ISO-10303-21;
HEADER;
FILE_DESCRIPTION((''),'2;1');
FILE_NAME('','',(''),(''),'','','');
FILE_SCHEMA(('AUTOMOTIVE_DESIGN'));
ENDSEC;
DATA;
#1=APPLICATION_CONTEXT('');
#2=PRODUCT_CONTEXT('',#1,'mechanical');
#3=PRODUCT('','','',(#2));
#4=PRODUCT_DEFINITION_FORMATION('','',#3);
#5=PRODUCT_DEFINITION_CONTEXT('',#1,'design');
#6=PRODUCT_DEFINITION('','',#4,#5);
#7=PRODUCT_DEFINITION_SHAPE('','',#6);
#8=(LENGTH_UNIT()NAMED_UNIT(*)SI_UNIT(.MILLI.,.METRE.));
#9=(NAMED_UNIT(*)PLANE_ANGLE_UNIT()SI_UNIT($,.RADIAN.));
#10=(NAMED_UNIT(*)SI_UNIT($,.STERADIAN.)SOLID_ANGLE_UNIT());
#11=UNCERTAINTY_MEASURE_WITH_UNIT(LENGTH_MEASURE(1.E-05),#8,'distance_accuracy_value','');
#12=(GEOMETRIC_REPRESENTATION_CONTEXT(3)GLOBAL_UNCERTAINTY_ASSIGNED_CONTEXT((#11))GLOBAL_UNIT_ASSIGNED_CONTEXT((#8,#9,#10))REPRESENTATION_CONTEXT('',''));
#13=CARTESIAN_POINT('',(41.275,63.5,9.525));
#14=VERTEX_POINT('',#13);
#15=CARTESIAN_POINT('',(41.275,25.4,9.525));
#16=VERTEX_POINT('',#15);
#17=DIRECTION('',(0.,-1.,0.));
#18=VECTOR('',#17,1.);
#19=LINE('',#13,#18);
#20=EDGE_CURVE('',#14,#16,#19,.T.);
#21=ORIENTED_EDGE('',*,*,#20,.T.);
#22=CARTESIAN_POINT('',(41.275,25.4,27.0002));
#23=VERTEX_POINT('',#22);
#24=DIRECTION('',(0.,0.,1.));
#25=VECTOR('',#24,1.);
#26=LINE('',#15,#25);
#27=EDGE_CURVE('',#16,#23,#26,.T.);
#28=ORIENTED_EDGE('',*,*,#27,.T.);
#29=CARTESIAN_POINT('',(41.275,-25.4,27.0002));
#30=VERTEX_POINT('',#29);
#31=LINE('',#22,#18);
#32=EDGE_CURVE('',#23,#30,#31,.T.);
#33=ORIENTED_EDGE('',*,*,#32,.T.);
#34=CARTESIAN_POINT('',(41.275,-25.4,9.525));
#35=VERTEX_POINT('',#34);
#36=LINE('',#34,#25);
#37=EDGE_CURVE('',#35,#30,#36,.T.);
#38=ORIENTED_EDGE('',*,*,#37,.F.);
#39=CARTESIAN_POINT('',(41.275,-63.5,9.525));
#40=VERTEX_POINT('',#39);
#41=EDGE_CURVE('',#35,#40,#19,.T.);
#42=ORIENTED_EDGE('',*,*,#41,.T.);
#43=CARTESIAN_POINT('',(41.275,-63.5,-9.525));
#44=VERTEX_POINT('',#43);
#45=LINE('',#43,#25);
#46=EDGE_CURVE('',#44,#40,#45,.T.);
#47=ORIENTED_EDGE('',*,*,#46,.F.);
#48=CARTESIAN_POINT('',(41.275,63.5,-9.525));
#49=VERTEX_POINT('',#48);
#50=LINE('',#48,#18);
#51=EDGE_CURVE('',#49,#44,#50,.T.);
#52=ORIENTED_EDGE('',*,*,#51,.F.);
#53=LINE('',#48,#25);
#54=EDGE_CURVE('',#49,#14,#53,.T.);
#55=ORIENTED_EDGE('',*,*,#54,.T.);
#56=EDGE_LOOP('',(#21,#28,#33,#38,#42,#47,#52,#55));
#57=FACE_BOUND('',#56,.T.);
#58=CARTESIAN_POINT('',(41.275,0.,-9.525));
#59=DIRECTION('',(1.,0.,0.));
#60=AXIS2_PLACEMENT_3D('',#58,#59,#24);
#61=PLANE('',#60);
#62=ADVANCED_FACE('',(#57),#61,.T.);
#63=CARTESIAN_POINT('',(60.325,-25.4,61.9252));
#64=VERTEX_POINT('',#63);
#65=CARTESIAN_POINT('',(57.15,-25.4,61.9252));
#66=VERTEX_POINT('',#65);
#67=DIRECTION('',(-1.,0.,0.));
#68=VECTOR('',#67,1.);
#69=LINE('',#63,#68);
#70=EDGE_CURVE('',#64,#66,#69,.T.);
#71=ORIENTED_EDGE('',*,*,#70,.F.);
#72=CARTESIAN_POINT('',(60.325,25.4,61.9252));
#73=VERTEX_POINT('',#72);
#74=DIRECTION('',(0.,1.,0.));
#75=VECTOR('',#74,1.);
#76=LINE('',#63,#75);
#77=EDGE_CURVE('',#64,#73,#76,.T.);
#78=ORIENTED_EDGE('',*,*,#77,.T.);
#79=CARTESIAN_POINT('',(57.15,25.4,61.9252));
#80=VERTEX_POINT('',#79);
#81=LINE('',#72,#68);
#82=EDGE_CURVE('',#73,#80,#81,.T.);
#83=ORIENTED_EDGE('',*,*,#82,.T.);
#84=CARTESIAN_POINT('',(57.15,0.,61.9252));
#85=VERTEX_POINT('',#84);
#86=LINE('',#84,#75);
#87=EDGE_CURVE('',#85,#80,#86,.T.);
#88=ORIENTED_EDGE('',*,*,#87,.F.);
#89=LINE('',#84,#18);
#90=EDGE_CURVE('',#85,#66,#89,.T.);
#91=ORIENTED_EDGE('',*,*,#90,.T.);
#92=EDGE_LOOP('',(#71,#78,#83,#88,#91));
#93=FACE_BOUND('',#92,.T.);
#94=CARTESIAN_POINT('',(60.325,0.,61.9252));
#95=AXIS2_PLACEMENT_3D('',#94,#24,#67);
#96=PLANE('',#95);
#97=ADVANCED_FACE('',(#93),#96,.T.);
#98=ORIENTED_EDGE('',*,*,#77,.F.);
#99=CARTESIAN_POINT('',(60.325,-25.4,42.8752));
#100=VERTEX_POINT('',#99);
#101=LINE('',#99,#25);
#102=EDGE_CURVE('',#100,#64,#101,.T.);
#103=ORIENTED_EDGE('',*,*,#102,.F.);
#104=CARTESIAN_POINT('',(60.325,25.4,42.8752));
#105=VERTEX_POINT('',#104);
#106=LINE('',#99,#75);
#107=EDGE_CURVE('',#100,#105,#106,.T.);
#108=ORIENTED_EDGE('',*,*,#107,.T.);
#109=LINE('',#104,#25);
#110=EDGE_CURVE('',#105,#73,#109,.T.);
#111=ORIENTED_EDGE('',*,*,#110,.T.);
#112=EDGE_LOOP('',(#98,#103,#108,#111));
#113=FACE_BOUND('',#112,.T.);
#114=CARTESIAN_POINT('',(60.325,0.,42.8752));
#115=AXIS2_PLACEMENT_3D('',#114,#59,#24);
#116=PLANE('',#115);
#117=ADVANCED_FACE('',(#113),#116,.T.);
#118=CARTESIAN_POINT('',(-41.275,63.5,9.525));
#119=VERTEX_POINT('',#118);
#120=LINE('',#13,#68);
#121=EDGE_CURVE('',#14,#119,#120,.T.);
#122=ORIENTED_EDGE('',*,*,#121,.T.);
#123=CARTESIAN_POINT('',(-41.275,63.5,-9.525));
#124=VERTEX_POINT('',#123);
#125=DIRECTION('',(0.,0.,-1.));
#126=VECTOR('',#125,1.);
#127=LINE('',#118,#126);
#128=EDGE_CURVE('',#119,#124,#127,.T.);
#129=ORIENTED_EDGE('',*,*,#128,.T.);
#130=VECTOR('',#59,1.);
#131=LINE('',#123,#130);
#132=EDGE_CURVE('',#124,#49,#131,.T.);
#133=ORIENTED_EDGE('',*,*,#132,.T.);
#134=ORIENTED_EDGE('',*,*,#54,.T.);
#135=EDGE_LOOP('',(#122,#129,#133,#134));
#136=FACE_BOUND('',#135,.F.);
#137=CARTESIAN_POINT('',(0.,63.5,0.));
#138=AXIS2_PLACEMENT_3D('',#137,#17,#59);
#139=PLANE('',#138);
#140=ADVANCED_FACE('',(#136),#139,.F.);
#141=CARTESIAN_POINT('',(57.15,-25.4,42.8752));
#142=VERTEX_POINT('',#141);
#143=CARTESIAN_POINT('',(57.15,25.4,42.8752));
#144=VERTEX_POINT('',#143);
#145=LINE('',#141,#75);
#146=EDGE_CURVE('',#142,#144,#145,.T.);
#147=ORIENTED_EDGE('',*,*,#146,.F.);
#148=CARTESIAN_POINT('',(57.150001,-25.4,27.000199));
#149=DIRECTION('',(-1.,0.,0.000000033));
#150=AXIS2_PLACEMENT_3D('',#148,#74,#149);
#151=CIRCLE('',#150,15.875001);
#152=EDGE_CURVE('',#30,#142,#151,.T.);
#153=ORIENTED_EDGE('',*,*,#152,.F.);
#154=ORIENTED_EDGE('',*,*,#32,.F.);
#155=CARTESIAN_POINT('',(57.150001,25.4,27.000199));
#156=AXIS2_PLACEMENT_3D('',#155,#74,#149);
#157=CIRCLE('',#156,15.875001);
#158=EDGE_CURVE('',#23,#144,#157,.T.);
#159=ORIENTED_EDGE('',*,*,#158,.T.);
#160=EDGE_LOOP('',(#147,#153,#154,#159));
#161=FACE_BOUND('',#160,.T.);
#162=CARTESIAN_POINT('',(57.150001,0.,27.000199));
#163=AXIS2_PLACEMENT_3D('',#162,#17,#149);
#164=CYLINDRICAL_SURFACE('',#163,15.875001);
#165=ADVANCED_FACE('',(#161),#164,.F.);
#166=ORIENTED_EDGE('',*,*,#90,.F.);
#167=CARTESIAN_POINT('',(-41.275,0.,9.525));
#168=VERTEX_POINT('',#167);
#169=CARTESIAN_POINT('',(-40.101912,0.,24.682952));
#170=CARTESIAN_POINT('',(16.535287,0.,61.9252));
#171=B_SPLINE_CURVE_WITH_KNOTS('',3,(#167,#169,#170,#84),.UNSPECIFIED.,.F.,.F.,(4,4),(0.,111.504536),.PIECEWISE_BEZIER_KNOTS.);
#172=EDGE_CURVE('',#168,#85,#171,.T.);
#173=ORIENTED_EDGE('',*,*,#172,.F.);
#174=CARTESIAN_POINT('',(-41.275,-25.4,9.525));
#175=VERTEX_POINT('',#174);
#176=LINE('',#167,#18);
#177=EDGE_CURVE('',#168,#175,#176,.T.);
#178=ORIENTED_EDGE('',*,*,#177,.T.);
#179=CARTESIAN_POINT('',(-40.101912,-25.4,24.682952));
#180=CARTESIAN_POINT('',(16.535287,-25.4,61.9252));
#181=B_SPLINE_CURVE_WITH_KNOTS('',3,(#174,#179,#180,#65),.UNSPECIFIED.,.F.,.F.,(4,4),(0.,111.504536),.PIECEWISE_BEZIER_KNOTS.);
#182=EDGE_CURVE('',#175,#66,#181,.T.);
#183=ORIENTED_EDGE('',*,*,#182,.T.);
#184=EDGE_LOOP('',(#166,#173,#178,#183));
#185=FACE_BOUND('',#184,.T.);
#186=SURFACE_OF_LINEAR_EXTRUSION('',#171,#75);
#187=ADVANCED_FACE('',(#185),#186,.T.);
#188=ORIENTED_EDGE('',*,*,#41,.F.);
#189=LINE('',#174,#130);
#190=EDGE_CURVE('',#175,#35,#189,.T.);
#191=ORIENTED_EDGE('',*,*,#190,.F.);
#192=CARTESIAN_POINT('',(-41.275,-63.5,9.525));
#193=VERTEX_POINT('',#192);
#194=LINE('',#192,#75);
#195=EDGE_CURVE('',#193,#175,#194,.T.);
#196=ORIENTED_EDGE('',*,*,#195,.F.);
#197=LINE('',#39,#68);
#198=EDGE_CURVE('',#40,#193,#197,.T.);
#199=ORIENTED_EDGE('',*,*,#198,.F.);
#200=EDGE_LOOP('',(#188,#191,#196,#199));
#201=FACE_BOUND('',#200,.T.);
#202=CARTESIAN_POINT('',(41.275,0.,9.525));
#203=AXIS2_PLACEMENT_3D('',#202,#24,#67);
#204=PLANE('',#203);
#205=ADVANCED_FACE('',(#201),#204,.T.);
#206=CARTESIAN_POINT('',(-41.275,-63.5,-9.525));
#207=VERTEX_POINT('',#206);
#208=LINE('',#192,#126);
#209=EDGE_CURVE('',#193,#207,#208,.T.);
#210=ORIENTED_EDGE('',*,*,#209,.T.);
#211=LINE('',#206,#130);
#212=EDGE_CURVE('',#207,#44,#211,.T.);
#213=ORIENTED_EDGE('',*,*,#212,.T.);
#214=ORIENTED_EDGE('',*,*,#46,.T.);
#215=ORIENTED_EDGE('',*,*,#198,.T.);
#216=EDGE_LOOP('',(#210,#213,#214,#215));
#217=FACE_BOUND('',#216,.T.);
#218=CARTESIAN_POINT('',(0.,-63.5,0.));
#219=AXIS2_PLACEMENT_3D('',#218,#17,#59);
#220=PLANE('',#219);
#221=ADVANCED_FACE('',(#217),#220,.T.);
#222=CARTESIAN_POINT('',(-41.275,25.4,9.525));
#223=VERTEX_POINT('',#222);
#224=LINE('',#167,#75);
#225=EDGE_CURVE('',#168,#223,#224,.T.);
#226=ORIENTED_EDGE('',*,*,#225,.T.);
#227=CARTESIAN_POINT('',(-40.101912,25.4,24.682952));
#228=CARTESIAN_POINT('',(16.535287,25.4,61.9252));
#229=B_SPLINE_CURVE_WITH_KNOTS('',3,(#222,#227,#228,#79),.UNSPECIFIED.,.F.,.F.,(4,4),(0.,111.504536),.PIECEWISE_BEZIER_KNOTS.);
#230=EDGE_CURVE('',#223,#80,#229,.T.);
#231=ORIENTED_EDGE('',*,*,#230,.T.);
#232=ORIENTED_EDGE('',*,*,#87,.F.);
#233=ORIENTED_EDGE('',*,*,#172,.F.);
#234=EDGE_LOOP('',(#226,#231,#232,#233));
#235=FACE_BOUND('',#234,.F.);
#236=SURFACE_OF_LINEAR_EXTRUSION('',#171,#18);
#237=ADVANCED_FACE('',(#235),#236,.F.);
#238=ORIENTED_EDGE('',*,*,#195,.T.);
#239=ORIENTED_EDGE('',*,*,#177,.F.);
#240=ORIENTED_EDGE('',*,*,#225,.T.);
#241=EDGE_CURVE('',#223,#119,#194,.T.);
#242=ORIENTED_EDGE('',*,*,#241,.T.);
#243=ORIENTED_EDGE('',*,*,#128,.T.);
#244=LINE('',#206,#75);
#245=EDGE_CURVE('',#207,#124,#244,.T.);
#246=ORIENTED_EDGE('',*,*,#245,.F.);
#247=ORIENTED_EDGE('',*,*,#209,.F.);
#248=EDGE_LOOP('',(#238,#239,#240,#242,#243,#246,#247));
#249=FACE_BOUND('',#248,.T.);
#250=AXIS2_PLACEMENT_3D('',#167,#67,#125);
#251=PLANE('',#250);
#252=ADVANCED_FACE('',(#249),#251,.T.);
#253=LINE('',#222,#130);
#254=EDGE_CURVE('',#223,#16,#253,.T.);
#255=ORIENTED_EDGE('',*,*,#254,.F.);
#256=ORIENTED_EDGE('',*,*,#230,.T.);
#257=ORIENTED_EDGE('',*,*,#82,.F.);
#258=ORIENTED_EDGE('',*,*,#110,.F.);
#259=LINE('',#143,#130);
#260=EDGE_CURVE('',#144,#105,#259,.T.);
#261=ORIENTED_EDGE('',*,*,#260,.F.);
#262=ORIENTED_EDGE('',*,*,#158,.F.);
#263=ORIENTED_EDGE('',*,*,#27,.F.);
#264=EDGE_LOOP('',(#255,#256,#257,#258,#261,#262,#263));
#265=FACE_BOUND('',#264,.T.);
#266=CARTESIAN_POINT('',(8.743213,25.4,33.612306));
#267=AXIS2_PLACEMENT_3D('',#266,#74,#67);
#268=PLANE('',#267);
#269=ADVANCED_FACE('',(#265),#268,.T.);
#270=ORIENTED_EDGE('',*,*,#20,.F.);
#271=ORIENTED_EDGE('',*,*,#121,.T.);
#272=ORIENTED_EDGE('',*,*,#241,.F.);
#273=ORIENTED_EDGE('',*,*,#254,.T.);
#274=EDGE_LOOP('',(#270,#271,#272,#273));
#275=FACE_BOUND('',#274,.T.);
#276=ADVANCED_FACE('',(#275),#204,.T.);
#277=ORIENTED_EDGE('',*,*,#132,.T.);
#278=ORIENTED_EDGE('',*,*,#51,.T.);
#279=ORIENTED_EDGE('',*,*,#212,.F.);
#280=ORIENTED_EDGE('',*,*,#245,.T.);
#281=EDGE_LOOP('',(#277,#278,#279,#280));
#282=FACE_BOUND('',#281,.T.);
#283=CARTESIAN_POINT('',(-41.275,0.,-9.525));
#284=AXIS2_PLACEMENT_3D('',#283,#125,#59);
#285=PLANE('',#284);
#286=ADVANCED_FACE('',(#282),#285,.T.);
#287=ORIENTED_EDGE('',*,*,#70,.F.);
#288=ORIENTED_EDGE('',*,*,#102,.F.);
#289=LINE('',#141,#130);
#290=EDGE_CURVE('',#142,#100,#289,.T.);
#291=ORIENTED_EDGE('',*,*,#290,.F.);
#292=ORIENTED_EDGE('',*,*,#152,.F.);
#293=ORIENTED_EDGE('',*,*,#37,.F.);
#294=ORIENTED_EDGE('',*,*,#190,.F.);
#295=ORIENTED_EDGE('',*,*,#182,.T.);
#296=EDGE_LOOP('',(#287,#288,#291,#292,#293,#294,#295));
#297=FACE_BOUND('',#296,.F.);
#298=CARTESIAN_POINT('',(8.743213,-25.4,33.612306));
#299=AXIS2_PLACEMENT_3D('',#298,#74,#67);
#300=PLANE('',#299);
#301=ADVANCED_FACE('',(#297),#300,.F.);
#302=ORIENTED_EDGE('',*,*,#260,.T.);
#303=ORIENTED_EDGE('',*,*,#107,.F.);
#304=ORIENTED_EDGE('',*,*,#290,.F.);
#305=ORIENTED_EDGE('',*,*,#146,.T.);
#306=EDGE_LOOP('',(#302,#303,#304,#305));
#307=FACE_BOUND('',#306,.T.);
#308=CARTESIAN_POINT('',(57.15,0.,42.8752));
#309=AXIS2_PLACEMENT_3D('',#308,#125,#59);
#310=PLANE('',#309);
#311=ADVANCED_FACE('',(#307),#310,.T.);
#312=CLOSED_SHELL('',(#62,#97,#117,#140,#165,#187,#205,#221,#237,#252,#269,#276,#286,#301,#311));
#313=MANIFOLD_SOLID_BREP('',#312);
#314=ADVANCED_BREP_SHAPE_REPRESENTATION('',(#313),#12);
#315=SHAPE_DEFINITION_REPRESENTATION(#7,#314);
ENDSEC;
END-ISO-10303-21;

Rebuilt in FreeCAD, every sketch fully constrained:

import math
import FreeCAD as App
import Part
import Sketcher
Q = App.Units.Quantity


def add_polygon(sketch, points):
    """Adds a closed chain of lines whose ends are joined by coincident constraints."""
    first, n = sketch.GeometryCount, len(points)
    for a, b in zip(points, points[1:] + points[:1]):
        sketch.addGeometry(Part.LineSegment(App.Vector(*a, 0), App.Vector(*b, 0)), False)
    for i in range(n):
        sketch.addConstraint(Sketcher.Constraint("Coincident", first + i, 2, first + (i + 1) % n, 1))

doc = App.newDocument("Part")
body = doc.addObject("PartDesign::Body", "Body")

# Sketch on XZ plane
sketch1 = body.newObject("Sketcher::SketchObject", "Sketch")
sketch1.AttachmentSupport = (doc.getObject("XZ_Plane"), [""])
sketch1.MapMode = "FlatFace"
add_polygon(sketch1, [(-41.275, -9.525), (41.275, -9.525), (41.275, 9.525), (-41.275, 9.525)])  # lines 0-3
sketch1.addConstraint(Sketcher.Constraint("Horizontal", 0))
sketch1.addConstraint(Sketcher.Constraint("Vertical", 1))
sketch1.addConstraint(Sketcher.Constraint("Horizontal", 2))
sketch1.addConstraint(Sketcher.Constraint("Vertical", 3))
sketch1.addConstraint(Sketcher.Constraint("Symmetric", 0, 2, 2, 2, -1, 1))
sketch1.addConstraint(Sketcher.Constraint("DistanceX", 0, 1, 0, 2, Q("3.25 in")))
sketch1.addConstraint(Sketcher.Constraint("DistanceY", 1, 1, 1, 2, Q("0.75 in")))
pad1 = body.newObject("PartDesign::Pad", "Pad")
pad1.Profile = sketch1
pad1.Length = Q("5 in")
pad1.Midplane = True

# Sketch on XZ plane
sketch2 = body.newObject("Sketcher::SketchObject", "Sketch001")
sketch2.AttachmentSupport = (doc.getObject("XZ_Plane"), [""])
sketch2.MapMode = "FlatFace"
sketch2.addGeometry(Part.BSplineCurve([App.Vector(-41.275, 9.525, 0), App.Vector(-40.101912, 24.682952, 0), App.Vector(16.535287, 61.9252, 0), App.Vector(57.15, 61.9252, 0)], [4, 4], [0, 111.504536], False, 3, [1, 1, 1, 1], False), False)
sketch2.addGeometry(Part.LineSegment(App.Vector(-41.275, 9.525, 0), App.Vector(41.275, 9.525, 0)), False)
sketch2.addGeometry(Part.LineSegment(App.Vector(41.275, 9.525, 0), App.Vector(41.275, 27.0002, 0)), False)
sketch2.addGeometry(Part.ArcOfCircle(Part.Circle(App.Vector(57.150001, 27.000199, 0), App.Vector(0, 0, 1), 15.875001), math.radians(90.000002), math.radians(179.999998)), False)
sketch2.addGeometry(Part.LineSegment(App.Vector(57.15, 42.8752, 0), App.Vector(60.325, 42.8752, 0)), False)
sketch2.addGeometry(Part.LineSegment(App.Vector(60.325, 42.8752, 0), App.Vector(60.325, 61.9252, 0)), False)
sketch2.addGeometry(Part.LineSegment(App.Vector(60.325, 61.9252, 0), App.Vector(57.15, 61.9252, 0)), False)
sketch2.addConstraint(Sketcher.Constraint("Block", 0))
sketch2.addConstraint(Sketcher.Constraint("Coincident", 0, 1, 1, 1))
sketch2.addConstraint(Sketcher.Constraint("Coincident", 1, 2, 2, 1))
sketch2.addConstraint(Sketcher.Constraint("Tangent", 2, 2, 3, 2))
sketch2.addConstraint(Sketcher.Constraint("Tangent", 3, 1, 4, 1))
sketch2.addConstraint(Sketcher.Constraint("Coincident", 4, 2, 5, 1))
sketch2.addConstraint(Sketcher.Constraint("Coincident", 5, 2, 6, 1))
sketch2.addConstraint(Sketcher.Constraint("Coincident", 6, 2, 0, 2))
sketch2.addConstraint(Sketcher.Constraint("Horizontal", 1))
sketch2.addConstraint(Sketcher.Constraint("Vertical", 2))
sketch2.addConstraint(Sketcher.Constraint("Horizontal", 4))
sketch2.addConstraint(Sketcher.Constraint("Vertical", 5))
sketch2.addConstraint(Sketcher.Constraint("Horizontal", 6))
sketch2.addConstraint(Sketcher.Constraint("Vertical", 3, 1, 6, 2))
sketch2.addConstraint(Sketcher.Constraint("Radius", 3, Q("0.625 in")))
sketch2.addConstraint(Sketcher.Constraint("DistanceY", 5, 1, 5, 2, Q("0.75 in")))
sketch2.addConstraint(Sketcher.Constraint("DistanceX", 4, 1, 4, 2, Q("0.125 in")))
pad2 = body.newObject("PartDesign::Pad", "Pad001")
pad2.Profile = sketch2
pad2.Length = Q("2 in")
pad2.Midplane = True

doc.recompute()
